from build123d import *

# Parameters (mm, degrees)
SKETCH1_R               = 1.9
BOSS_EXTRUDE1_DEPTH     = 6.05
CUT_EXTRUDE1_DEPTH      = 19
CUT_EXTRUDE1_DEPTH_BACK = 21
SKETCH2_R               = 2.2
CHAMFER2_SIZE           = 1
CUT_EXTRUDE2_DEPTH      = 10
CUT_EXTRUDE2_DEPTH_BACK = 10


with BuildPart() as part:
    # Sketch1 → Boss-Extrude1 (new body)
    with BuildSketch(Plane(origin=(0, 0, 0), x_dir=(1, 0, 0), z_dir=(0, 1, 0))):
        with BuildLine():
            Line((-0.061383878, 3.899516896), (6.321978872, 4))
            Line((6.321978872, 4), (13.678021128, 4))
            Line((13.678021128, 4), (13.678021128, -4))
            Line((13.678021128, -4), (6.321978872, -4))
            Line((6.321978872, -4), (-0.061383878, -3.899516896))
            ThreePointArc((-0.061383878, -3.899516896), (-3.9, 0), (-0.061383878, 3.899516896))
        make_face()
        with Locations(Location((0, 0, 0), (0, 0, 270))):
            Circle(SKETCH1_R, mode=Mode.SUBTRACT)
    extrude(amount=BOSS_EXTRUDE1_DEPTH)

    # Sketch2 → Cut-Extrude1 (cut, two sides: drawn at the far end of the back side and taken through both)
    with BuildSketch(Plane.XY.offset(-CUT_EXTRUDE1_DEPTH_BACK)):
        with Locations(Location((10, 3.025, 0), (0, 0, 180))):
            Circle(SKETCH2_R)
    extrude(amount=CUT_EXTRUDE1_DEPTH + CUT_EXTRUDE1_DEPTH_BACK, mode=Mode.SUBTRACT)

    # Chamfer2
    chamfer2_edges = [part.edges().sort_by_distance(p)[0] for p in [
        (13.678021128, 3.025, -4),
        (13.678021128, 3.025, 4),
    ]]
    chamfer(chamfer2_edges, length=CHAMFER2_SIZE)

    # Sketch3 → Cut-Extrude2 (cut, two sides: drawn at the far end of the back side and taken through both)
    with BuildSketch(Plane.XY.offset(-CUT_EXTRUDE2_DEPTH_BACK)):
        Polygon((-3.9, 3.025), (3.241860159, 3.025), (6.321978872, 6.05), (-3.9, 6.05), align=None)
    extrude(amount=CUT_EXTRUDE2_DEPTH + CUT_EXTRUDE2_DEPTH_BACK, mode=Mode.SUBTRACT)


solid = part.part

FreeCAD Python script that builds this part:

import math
import FreeCAD as App
import Part
import Sketcher
from FreeCAD import Vector
Q = App.Units.Quantity


def edges_at(feature, points):
    """Names of the edges that pass closest to the given points."""
    edges = feature.Shape.Edges
    near = lambda p: min(range(len(edges)), key=lambda i: edges[i].distToShape(Part.Vertex(*p))[0])
    return sorted({f"Edge{near(p) + 1}" for p in points})


def add_polygon(sketch, points):
    """Adds a closed chain of lines whose ends are joined by coincident constraints."""
    first, n = sketch.GeometryCount, len(points)
    for a, b in zip(points, points[1:] + points[:1]):
        sketch.addGeometry(Part.LineSegment(App.Vector(*a, 0), App.Vector(*b, 0)), False)
    for i in range(n):
        sketch.addConstraint(Sketcher.Constraint("Coincident", first + i, 2, first + (i + 1) % n, 1))

doc = App.newDocument("Part")
body = doc.addObject("PartDesign::Body", "Body")

# Sketch on XZ plane
sketch1 = body.newObject("Sketcher::SketchObject", "Sketch")
sketch1.AttachmentSupport = (doc.getObject("XZ_Plane"), [""])
sketch1.MapMode = "FlatFace"
sketch1.addGeometry(Part.LineSegment(Vector(6.3, -4, 0), Vector(-0.1, -3.9, 0)), False)
sketch1.addGeometry(Part.ArcOfCircle(Part.Circle(Vector(0, 0, 0), Vector(0, 0, 1), 3.9), math.radians(91), math.radians(269)), False)
sketch1.addGeometry(Part.LineSegment(Vector(-0.1, 3.9, 0), Vector(6.3, 4, 0)), False)
sketch1.addGeometry(Part.LineSegment(Vector(6.3, 4, 0), Vector(13.7, 4, 0)), False)
sketch1.addGeometry(Part.LineSegment(Vector(13.7, 4, 0), Vector(13.7, -4, 0)), False)
sketch1.addGeometry(Part.LineSegment(Vector(13.7, -4, 0), Vector(6.3, -4, 0)), False)
sketch1.addGeometry(Part.Circle(Vector(0, 0, 0), Vector(0, 0, 1), 1.9), False)
sketch1.addConstraint(Sketcher.Constraint("Tangent", 0, 2, 1, 2))
sketch1.addConstraint(Sketcher.Constraint("Tangent", 1, 1, 2, 1))
sketch1.addConstraint(Sketcher.Constraint("Coincident", 2, 2, 3, 1))
sketch1.addConstraint(Sketcher.Constraint("Coincident", 3, 2, 4, 1))
sketch1.addConstraint(Sketcher.Constraint("Coincident", 4, 2, 5, 1))
sketch1.addConstraint(Sketcher.Constraint("Coincident", 5, 2, 0, 1))
sketch1.addConstraint(Sketcher.Constraint("Horizontal", 3))
sketch1.addConstraint(Sketcher.Constraint("Vertical", 4))
sketch1.addConstraint(Sketcher.Constraint("Horizontal", 5))
sketch1.addConstraint(Sketcher.Constraint("Coincident", 1, 3, -1, 1))
sketch1.addConstraint(Sketcher.Constraint("Coincident", 6, 3, -1, 1))
sketch1.addConstraint(Sketcher.Constraint("Symmetric", 2, 2, 5, 2, -1))
sketch1.addConstraint(Sketcher.Constraint("Diameter", 6, Q("3.8 mm")))
sketch1.addConstraint(Sketcher.Constraint("Radius", 1, Q("3.9 mm")))
sketch1.addConstraint(Sketcher.Constraint("DistanceY", 4, 2, 4, 1, Q("8 mm")))
sketch1.addConstraint(Sketcher.Constraint("DistanceX", 3, 1, 3, 2, Q("7.356042 mm")))
sketch1.addConstraint(Sketcher.Constraint("DistanceX", -1, 1, 2, 2, Q("6.321979 mm")))
pad1 = body.newObject("PartDesign::Pad", "Pad")
pad1.Profile = sketch1
pad1.Length = 6.05
pad1.Reversed = True

# Sketch on XY plane
sketch2 = body.newObject("Sketcher::SketchObject", "Sketch001")
sketch2.AttachmentSupport = (doc.getObject("XY_Plane"), [""])
sketch2.MapMode = "FlatFace"
sketch2.addGeometry(Part.Circle(Vector(10, 3, 0), Vector(0, 0, 1), 2.2), False)
sketch2.addConstraint(Sketcher.Constraint("Diameter", 0, Q("4.4 mm")))
sketch2.addConstraint(Sketcher.Constraint("DistanceX", -1, 1, 0, 3, Q("10 mm")))
sketch2.addConstraint(Sketcher.Constraint("DistanceY", -1, 1, 0, 3, Q("3.025 mm")))
pocket1 = body.newObject("PartDesign::Pocket", "Pocket")
pocket1.Profile = sketch2
pocket1.Type = "ThroughAll"
pocket1.Midplane = True
doc.recompute()

chamfer = body.newObject("PartDesign::Chamfer", "Chamfer")
chamfer.Base = (pocket1, edges_at(pocket1, [(13.678, 3.025, -4), (13.678, 3.025, 4)]))
chamfer.Size = 1

# Sketch on XY plane
sketch3 = body.newObject("Sketcher::SketchObject", "Sketch002")
sketch3.AttachmentSupport = (doc.getObject("XY_Plane"), [""])
sketch3.MapMode = "FlatFace"
add_polygon(sketch3, [(-3.9, 3), (3.2, 3), (6.3, 6), (-3.9, 6)])  # lines 0-3
sketch3.addConstraint(Sketcher.Constraint("Horizontal", 0))
sketch3.addConstraint(Sketcher.Constraint("Horizontal", 2))
sketch3.addConstraint(Sketcher.Constraint("Vertical", 3))
sketch3.addConstraint(Sketcher.Constraint("DistanceX", 2, 2, -1, 1, Q("3.9 mm")))
sketch3.addConstraint(Sketcher.Constraint("DistanceY", 3, 2, 3, 1, Q("3.025 mm")))
sketch3.addConstraint(Sketcher.Constraint("DistanceY", -1, 1, 1, 2, Q("6.05 mm")))
sketch3.addConstraint(Sketcher.Constraint("DistanceX", 0, 1, 0, 2, Q("7.14186 mm")))
sketch3.addConstraint(Sketcher.Constraint("DistanceX", 2, 2, 2, 1, Q("10.221979 mm")))
pocket2 = body.newObject("PartDesign::Pocket", "Pocket001")
pocket2.Profile = sketch3
pocket2.Type = "ThroughAll"
pocket2.Midplane = True

doc.recompute()
